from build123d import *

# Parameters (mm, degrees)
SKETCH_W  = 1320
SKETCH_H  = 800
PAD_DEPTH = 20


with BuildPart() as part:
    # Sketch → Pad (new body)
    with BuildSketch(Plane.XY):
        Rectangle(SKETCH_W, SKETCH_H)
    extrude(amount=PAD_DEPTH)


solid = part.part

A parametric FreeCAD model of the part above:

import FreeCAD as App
import Part
import Sketcher
from FreeCAD import Vector
Q = App.Units.Quantity


def add_polygon(sketch, points):
    """Adds a closed chain of lines whose ends are joined by coincident constraints."""
    first, n = sketch.GeometryCount, len(points)
    for a, b in zip(points, points[1:] + points[:1]):
        sketch.addGeometry(Part.LineSegment(App.Vector(*a, 0), App.Vector(*b, 0)), False)
    for i in range(n):
        sketch.addConstraint(Sketcher.Constraint("Coincident", first + i, 2, first + (i + 1) % n, 1))

doc = App.newDocument("Part")
body = doc.addObject("PartDesign::Body", "Body")

# Sketch on XY plane
sketch1 = body.newObject("Sketcher::SketchObject", "Sketch")
sketch1.AttachmentSupport = (doc.getObject("XY_Plane"), [""])
sketch1.MapMode = "FlatFace"
add_polygon(sketch1, [(-660, 400), (-660, -400), (660, -400), (660, 400)])  # lines 0-3
sketch1.addConstraint([
    Sketcher.Constraint("Vertical", 0),
    Sketcher.Constraint("Horizontal", 1),
    Sketcher.Constraint("Vertical", 2),
    Sketcher.Constraint("Horizontal", 3),
    Sketcher.Constraint("Symmetric", 0, 2, 2, 2, -1, 1),
    Sketcher.Constraint("DistanceX", 1, 1, 1, 2, Q("1320 mm")),
    Sketcher.Constraint("DistanceY", 0, 2, 0, 1, Q("800 mm")),
])
pad1 = body.newObject("PartDesign::Pad", "Pad")
pad1.Profile = sketch1
pad1.Length = 20

doc.recompute()
